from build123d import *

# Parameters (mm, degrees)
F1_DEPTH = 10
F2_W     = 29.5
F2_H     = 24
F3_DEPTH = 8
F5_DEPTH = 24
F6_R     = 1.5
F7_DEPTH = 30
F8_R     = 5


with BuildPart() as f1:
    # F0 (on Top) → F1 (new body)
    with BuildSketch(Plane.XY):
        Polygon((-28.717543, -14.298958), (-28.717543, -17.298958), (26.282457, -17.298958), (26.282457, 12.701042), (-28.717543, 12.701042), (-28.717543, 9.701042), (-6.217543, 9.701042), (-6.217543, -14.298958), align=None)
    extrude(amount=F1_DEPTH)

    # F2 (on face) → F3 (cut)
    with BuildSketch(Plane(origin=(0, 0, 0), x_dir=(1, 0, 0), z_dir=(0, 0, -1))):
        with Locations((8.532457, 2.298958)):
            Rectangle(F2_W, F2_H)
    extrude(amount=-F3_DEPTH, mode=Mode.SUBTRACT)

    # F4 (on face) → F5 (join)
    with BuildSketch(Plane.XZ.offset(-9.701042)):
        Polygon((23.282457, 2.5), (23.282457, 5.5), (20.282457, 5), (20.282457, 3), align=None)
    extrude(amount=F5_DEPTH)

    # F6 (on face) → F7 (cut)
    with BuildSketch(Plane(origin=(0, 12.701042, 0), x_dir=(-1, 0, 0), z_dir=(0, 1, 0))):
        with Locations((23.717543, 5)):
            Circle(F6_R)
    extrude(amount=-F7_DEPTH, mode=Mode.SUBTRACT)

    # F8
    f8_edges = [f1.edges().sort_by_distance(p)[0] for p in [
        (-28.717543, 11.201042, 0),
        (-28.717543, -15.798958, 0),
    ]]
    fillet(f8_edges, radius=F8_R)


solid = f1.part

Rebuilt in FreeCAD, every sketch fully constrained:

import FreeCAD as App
import Part
import Sketcher
Q = App.Units.Quantity


def edges_at(feature, points):
    """Names of the edges that pass closest to the given points."""
    edges = feature.Shape.Edges
    near = lambda p: min(range(len(edges)), key=lambda i: edges[i].distToShape(Part.Vertex(*p))[0])
    return sorted({f"Edge{near(p) + 1}" for p in points})

doc = App.newDocument("Part")
body = doc.addObject("PartDesign::Body", "Body")

sketch1 = body.newObject("Sketcher::SketchObject", "Sketch")
sketch1.AttachmentSupport = (doc.getObject("XY_Plane"), [""])
sketch1.MapMode = "FlatFace"
sketch1.addGeometry(Part.LineSegment(App.Vector(-28.7, -14.3, 0), App.Vector(-28.7, -17.3, 0)), False)
sketch1.addGeometry(Part.LineSegment(App.Vector(-28.7, -17.3, 0), App.Vector(26.3, -17.3, 0)), False)
sketch1.addGeometry(Part.LineSegment(App.Vector(26.3, -17.3, 0), App.Vector(26.3, 12.7, 0)), False)
sketch1.addGeometry(Part.LineSegment(App.Vector(26.3, 12.7, 0), App.Vector(-28.7, 12.7, 0)), False)
sketch1.addGeometry(Part.LineSegment(App.Vector(-28.7, 12.7, 0), App.Vector(-28.7, 9.7, 0)), False)
sketch1.addGeometry(Part.LineSegment(App.Vector(-28.7, 9.7, 0), App.Vector(-6.2, 9.7, 0)), False)
sketch1.addGeometry(Part.LineSegment(App.Vector(-6.2, 9.7, 0), App.Vector(-6.2, -14.3, 0)), False)
sketch1.addGeometry(Part.LineSegment(App.Vector(-6.2, -14.3, 0), App.Vector(-28.7, -14.3, 0)), False)
sketch1.addConstraint(Sketcher.Constraint("Coincident", 0, 2, 1, 1))
sketch1.addConstraint(Sketcher.Constraint("Coincident", 1, 2, 2, 1))
sketch1.addConstraint(Sketcher.Constraint("Coincident", 2, 2, 3, 1))
sketch1.addConstraint(Sketcher.Constraint("Coincident", 3, 2, 4, 1))
sketch1.addConstraint(Sketcher.Constraint("Coincident", 4, 2, 5, 1))
sketch1.addConstraint(Sketcher.Constraint("Coincident", 5, 2, 6, 1))
sketch1.addConstraint(Sketcher.Constraint("Coincident", 6, 2, 7, 1))
sketch1.addConstraint(Sketcher.Constraint("Coincident", 7, 2, 0, 1))
sketch1.addConstraint(Sketcher.Constraint("Vertical", 0))
sketch1.addConstraint(Sketcher.Constraint("Horizontal", 1))
sketch1.addConstraint(Sketcher.Constraint("Vertical", 2))
sketch1.addConstraint(Sketcher.Constraint("Horizontal", 3))
sketch1.addConstraint(Sketcher.Constraint("Vertical", 4))
sketch1.addConstraint(Sketcher.Constraint("Horizontal", 5))
sketch1.addConstraint(Sketcher.Constraint("Vertical", 6))
sketch1.addConstraint(Sketcher.Constraint("Horizontal", 7))
sketch1.addConstraint(Sketcher.Constraint("Vertical", 0, 2, 3, 2))
sketch1.addConstraint(Sketcher.Constraint("Equal", 0, 4))
sketch1.addConstraint(Sketcher.Constraint("DistanceX", 1, 1, 1, 2, Q("55 mm")))
sketch1.addConstraint(Sketcher.Constraint("DistanceY", 0, 2, 0, 1, Q("3 mm")))
sketch1.addConstraint(Sketcher.Constraint("DistanceY", 2, 1, 2, 2, Q("30 mm")))
sketch1.addConstraint(Sketcher.Constraint("DistanceX", 5, 1, 5, 2, Q("22.5 mm")))
sketch1.addConstraint(Sketcher.Constraint("DistanceY", -1, 1, 2, 2, Q("12.701042 mm")))
sketch1.addConstraint(Sketcher.Constraint("DistanceX", 0, 2, -1, 1, Q("28.717543 mm")))
pad1 = body.newObject("PartDesign::Pad", "Pad")
pad1.Profile = sketch1
pad1.Length = 10

sketch2 = body.newObject("Sketcher::SketchObject", "Sketch001")
sketch2.AttachmentSupport = (doc.getObject("XY_Plane"), [""])
sketch2.MapMode = "FlatFace"
sketch2.addGeometry(Part.LineSegment(App.Vector(-6, -14, 0), App.Vector(-6, 10, 0)), False)
sketch2.addGeometry(Part.LineSegment(App.Vector(-6, 10, 0), App.Vector(23, 10, 0)), False)
sketch2.addGeometry(Part.LineSegment(App.Vector(23, 10, 0), App.Vector(23, -14, 0)), False)
sketch2.addGeometry(Part.LineSegment(App.Vector(23, -14, 0), App.Vector(-6, -14, 0)), False)
sketch2.addConstraint(Sketcher.Constraint("Coincident", 0, 2, 1, 1))
sketch2.addConstraint(Sketcher.Constraint("Coincident", 1, 2, 2, 1))
sketch2.addConstraint(Sketcher.Constraint("Coincident", 2, 2, 3, 1))
sketch2.addConstraint(Sketcher.Constraint("Coincident", 3, 2, 0, 1))
sketch2.addConstraint(Sketcher.Constraint("Vertical", 0))
sketch2.addConstraint(Sketcher.Constraint("Horizontal", 1))
sketch2.addConstraint(Sketcher.Constraint("Vertical", 2))
sketch2.addConstraint(Sketcher.Constraint("Horizontal", 3))
sketch2.addConstraint(Sketcher.Constraint("DistanceY", 0, 1, 0, 2, Q("24 mm")))
sketch2.addConstraint(Sketcher.Constraint("DistanceX", 1, 1, 1, 2, Q("29.5 mm")))
sketch2.addConstraint(Sketcher.Constraint("DistanceY", -1, 1, 0, 2, Q("9.701042 mm")))
sketch2.addConstraint(Sketcher.Constraint("DistanceX", 0, 2, -1, 1, Q("6.217543 mm")))
pocket1 = body.newObject("PartDesign::Pocket", "Pocket")
pocket1.Profile = sketch2
pocket1.Length = 8
pocket1.Reversed = True

sketch3 = body.newObject("Sketcher::SketchObject", "Sketch002")
sketch3.AttachmentSupport = (doc.getObject("XZ_Plane"), [""])
sketch3.MapMode = "FlatFace"
sketch3.AttachmentOffset = App.Placement(App.Vector(0, 0, -9.701042), App.Rotation())
sketch3.addGeometry(Part.LineSegment(App.Vector(23.3, 2.5, 0), App.Vector(23.3, 5.5, 0)), False)
sketch3.addGeometry(Part.LineSegment(App.Vector(23.3, 5.5, 0), App.Vector(20.3, 5, 0)), False)
sketch3.addGeometry(Part.LineSegment(App.Vector(20.3, 5, 0), App.Vector(20.3, 3, 0)), False)
sketch3.addGeometry(Part.LineSegment(App.Vector(20.3, 3, 0), App.Vector(23.3, 2.5, 0)), False)
sketch3.addConstraint(Sketcher.Constraint("Coincident", 0, 2, 1, 1))
sketch3.addConstraint(Sketcher.Constraint("Coincident", 1, 2, 2, 1))
sketch3.addConstraint(Sketcher.Constraint("Coincident", 2, 2, 3, 1))
sketch3.addConstraint(Sketcher.Constraint("Coincident", 3, 2, 0, 1))
sketch3.addConstraint(Sketcher.Constraint("Vertical", 0))
sketch3.addConstraint(Sketcher.Constraint("Vertical", 2))
sketch3.addConstraint(Sketcher.Constraint("Equal", 1, 3))
sketch3.addConstraint(Sketcher.Constraint("DistanceY", 0, 1, 0, 2, Q("3 mm")))
sketch3.addConstraint(Sketcher.Constraint("DistanceY", 2, 2, 2, 1, Q("2 mm")))
sketch3.addConstraint(Sketcher.Constraint("DistanceY", -1, 1, 1, 2, Q("5 mm")))
sketch3.addConstraint(Sketcher.Constraint("DistanceX", 1, 2, 0, 2, Q("3 mm")))
sketch3.addConstraint(Sketcher.Constraint("DistanceX", -1, 1, 0, 2, Q("23.282457 mm")))
pad2 = body.newObject("PartDesign::Pad", "Pad001")
pad2.Profile = sketch3
pad2.Length = 24

sketch4 = body.newObject("Sketcher::SketchObject", "Sketch003")
sketch4.AttachmentSupport = (doc.getObject("XZ_Plane"), [""])
sketch4.MapMode = "FlatFace"
sketch4.AttachmentOffset = App.Placement(App.Vector(0, 0, -12.701042), App.Rotation())
sketch4.addGeometry(Part.Circle(App.Vector(-23.7, 5, 0), App.Vector(0, 0, 1), 1.5), False)
sketch4.addConstraint(Sketcher.Constraint("Diameter", 0, Q("3 mm")))
sketch4.addConstraint(Sketcher.Constraint("DistanceY", -1, 1, 0, 3, Q("5 mm")))
sketch4.addConstraint(Sketcher.Constraint("DistanceX", 0, 3, -1, 1, Q("23.717543 mm")))
pocket2 = body.newObject("PartDesign::Pocket", "Pocket001")
pocket2.Profile = sketch4
pocket2.Length = 30
pocket2.Reversed = True
doc.recompute()

fillet = body.newObject("PartDesign::Fillet", "Fillet")
fillet.Base = (pocket2, edges_at(pocket2, [(-28.718, 11.201, 0), (-28.718, -15.799, 0)]))
fillet.Radius = 5

doc.recompute()
